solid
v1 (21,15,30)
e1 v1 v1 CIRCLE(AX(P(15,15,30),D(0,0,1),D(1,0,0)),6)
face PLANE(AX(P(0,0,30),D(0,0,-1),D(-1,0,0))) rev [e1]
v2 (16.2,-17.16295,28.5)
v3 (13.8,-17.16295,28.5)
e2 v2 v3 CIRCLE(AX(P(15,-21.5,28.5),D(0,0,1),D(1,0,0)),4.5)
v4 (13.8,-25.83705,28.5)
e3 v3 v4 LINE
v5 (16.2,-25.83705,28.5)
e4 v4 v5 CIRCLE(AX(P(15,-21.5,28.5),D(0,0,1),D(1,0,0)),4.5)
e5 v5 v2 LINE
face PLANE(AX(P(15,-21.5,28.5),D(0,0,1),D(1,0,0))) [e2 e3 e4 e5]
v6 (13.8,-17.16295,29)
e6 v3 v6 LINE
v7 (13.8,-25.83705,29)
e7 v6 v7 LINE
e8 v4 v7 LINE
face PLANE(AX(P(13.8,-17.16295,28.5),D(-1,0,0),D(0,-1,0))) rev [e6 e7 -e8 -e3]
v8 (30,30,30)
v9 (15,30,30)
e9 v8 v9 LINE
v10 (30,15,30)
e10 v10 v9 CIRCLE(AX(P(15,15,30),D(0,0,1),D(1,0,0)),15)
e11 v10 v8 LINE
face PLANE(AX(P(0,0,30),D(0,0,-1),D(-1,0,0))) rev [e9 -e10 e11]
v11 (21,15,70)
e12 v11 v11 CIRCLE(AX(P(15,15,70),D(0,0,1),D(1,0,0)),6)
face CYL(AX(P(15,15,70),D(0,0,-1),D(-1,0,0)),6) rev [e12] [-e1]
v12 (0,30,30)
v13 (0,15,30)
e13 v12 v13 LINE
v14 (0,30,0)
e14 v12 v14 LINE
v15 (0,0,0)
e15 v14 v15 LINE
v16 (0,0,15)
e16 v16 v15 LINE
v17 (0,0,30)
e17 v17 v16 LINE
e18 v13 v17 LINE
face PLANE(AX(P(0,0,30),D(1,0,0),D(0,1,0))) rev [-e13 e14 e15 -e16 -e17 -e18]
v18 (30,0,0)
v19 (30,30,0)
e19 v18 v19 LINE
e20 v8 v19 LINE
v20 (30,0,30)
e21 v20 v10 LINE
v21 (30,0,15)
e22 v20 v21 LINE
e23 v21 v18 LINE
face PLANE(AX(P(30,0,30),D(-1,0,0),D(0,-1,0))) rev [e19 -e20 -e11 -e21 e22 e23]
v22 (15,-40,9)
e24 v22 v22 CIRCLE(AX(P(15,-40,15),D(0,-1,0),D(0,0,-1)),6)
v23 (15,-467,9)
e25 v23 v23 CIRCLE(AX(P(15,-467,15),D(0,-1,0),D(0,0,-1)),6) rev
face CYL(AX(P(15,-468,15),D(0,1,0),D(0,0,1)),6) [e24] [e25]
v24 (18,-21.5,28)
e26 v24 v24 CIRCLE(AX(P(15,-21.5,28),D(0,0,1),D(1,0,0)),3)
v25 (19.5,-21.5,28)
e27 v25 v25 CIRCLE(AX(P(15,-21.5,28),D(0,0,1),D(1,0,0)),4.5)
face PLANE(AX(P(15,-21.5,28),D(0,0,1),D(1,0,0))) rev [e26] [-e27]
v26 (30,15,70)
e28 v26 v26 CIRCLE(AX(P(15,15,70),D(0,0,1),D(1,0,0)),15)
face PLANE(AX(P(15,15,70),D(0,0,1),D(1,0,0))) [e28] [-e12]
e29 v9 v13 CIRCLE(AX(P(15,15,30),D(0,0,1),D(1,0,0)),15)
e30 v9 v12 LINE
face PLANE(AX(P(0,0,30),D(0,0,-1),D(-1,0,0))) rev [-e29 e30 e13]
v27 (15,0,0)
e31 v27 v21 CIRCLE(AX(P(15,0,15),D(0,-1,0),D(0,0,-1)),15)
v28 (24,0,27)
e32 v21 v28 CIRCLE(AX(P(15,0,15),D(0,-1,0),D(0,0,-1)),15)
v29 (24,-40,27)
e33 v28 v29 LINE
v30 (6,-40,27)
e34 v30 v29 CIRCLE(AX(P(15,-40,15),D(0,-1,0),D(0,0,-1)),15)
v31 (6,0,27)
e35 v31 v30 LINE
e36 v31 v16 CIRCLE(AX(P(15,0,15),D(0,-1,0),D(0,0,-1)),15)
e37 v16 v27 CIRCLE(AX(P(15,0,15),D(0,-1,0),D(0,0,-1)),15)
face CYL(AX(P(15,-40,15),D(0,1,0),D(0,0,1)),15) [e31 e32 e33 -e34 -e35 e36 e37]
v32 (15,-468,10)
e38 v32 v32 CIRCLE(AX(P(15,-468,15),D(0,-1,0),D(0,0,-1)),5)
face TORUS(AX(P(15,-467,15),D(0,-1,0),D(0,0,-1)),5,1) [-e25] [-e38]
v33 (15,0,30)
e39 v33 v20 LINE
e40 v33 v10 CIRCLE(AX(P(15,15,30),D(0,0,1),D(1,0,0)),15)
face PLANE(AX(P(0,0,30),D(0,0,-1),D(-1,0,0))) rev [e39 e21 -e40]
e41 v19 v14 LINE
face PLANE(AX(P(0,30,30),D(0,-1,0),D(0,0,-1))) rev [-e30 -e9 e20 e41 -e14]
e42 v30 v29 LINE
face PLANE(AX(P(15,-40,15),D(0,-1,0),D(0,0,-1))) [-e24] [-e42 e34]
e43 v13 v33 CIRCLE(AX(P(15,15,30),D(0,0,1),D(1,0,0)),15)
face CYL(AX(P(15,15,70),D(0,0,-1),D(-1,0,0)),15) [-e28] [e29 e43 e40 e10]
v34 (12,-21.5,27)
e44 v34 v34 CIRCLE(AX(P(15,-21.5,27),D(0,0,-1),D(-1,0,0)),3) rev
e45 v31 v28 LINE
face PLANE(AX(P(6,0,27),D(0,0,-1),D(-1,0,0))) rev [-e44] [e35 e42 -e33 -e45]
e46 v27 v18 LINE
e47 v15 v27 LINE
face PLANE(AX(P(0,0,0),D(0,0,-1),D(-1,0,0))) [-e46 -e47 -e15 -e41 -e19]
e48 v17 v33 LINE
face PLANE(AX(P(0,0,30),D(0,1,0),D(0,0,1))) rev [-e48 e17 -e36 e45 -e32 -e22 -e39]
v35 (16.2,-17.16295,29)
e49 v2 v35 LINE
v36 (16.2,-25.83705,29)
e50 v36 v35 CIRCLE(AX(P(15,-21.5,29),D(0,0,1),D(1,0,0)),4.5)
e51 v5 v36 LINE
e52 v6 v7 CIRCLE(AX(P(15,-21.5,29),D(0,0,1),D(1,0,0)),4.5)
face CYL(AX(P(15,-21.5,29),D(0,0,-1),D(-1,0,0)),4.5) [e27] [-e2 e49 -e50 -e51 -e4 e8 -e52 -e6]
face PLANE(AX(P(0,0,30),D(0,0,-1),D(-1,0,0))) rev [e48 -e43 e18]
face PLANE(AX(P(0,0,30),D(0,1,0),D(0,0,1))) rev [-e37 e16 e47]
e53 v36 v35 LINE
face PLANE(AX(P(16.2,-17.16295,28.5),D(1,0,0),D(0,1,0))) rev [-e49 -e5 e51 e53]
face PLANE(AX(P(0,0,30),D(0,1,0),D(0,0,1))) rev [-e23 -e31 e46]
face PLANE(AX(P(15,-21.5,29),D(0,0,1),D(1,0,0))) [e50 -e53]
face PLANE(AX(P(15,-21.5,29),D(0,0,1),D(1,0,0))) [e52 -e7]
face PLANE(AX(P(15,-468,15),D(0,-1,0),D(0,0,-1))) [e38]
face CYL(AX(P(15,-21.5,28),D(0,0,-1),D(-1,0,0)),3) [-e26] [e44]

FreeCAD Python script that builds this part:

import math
import FreeCAD as App
import Part
import Sketcher

V = App.Vector
Q = App.Units.Quantity


def edges_at(feature, points):
    """Names of the edges that pass closest to the given points."""
    edges = feature.Shape.Edges
    near = lambda p: min(range(len(edges)), key=lambda i: edges[i].distToShape(Part.Vertex(*p))[0])
    return sorted({f"Edge{near(p) + 1}" for p in points})


def add_polygon(sketch, points):
    """Adds a closed chain of lines whose ends are joined by coincident constraints."""
    first, n = sketch.GeometryCount, len(points)
    for a, b in zip(points, points[1:] + points[:1]):
        sketch.addGeometry(Part.LineSegment(App.Vector(*a, 0), App.Vector(*b, 0)), False)
    for i in range(n):
        sketch.addConstraint(Sketcher.Constraint("Coincident", first + i, 2, first + (i + 1) % n, 1))

doc = App.newDocument("Part")
params = doc.addObject("Spreadsheet::Sheet", "Params")
for row, (alias, value) in enumerate([
    ("sketch1_width", "30 mm"),
    ("pad1_length", "30 mm"),
    ("sketch2_diameter", "30 mm"),
    ("sketch2_diameter2", "12 mm"),
    ("pad2_length", "40 mm"),
    ("sketch3_diameter", "30 mm"),
    ("pad3_length", "40 mm"),
    ("sketch4_radius", "15 mm"),
    ("sketch4_width", "18 mm"),
    ("pocket1_length", "40 mm"),
    ("sketch5_diameter", "6 mm"),
    ("pad4_length", "1 mm"),
    ("sketch6_diameter", "9 mm"),
    ("pad5_length", "1 mm"),
    ("sketch7_radius", "4.5 mm"),
    ("pocket2_length", "0.5 mm"),
    ("sketch8_diameter", "12 mm"),
    ("pad6_length", "428 mm"),
    ("fillet_radius", "1 mm"),
], start=1):
    params.set(f"A{row}", alias)
    params.set(f"B{row}", "=" + value)
    params.setAlias(f"B{row}", alias)

body = doc.addObject("PartDesign::Body", "Body")

# Sketch on XY plane
sketch1 = doc.addObject("Sketcher::SketchObject", "Sketch")
body.addObject(sketch1)
sketch1.AttachmentSupport = (doc.XY_Plane, [""])
sketch1.MapMode = "FlatFace"
add_polygon(sketch1, [(0, 30), (0, 0), (30, 0), (30, 30)])  # lines 0-3
sketch1.addConstraint([
    Sketcher.Constraint("Vertical", 0),
    Sketcher.Constraint("Horizontal", 1),
    Sketcher.Constraint("Vertical", 2),
    Sketcher.Constraint("Horizontal", 3),
    Sketcher.Constraint("Coincident", 0, 2, -1, 1),
    Sketcher.Constraint("Equal", 3, 0),
    Sketcher.Constraint("DistanceX", 1, 1, 1, 2, Q("30 mm")),
])
sketch1.setExpression("Constraints[10]", "Params.sketch1_width")
pad1 = doc.addObject("PartDesign::Pad", "Pad")
body.addObject(pad1)
pad1.Profile = sketch1
pad1.setExpression("Length", "Params.pad1_length")

# Sketch on XY plane
sketch2 = doc.addObject("Sketcher::SketchObject", "Sketch001")
body.addObject(sketch2)
sketch2.AttachmentSupport = (doc.XY_Plane, [""])
sketch2.MapMode = "FlatFace"
sketch2.AttachmentOffset = App.Placement(V(0, 0, 30), App.Rotation())
sketch2.addGeometry([
    Part.Circle(V(15, 15, 0), V(0, 0, 1), 15),
    Part.Circle(V(15, 15, 0), V(0, 0, 1), 6),
], False)
sketch2.addConstraint([
    Sketcher.Constraint("Coincident", 1, 3, 0, 3),
    Sketcher.Constraint("Diameter", 0, Q("30 mm")),
    Sketcher.Constraint("Diameter", 1, Q("12 mm")),
    Sketcher.Constraint("DistanceX", -1, 1, 0, 3, Q("15 mm")),
    Sketcher.Constraint("DistanceY", -1, 1, 0, 3, Q("15 mm")),
])
sketch2.setExpression("Constraints[1]", "Params.sketch2_diameter")
sketch2.setExpression("Constraints[2]", "Params.sketch2_diameter2")
pad2 = doc.addObject("PartDesign::Pad", "Pad001")
body.addObject(pad2)
pad2.Profile = sketch2
pad2.setExpression("Length", "Params.pad2_length")

# Sketch on XZ plane
sketch3 = doc.addObject("Sketcher::SketchObject", "Sketch002")
body.addObject(sketch3)
sketch3.AttachmentSupport = (doc.XZ_Plane, [""])
sketch3.MapMode = "FlatFace"
sketch3.addGeometry(Part.Circle(V(15, 15, 0), V(0, 0, 1), 15), False)
sketch3.addConstraint([
    Sketcher.Constraint("Diameter", 0, Q("30 mm")),
    Sketcher.Constraint("DistanceX", -1, 1, 0, 3, Q("15 mm")),
    Sketcher.Constraint("DistanceY", -1, 1, 0, 3, Q("15 mm")),
])
sketch3.setExpression("Constraints[0]", "Params.sketch3_diameter")
pad3 = doc.addObject("PartDesign::Pad", "Pad002")
body.addObject(pad3)
pad3.Profile = sketch3
pad3.setExpression("Length", "Params.pad3_length")

# Sketch on XZ plane
sketch4 = doc.addObject("Sketcher::SketchObject", "Sketch003")
body.addObject(sketch4)
sketch4.AttachmentSupport = (doc.XZ_Plane, [""])
sketch4.MapMode = "FlatFace"
sketch4.AttachmentOffset = App.Placement(V(0, 0, 40), App.Rotation())
sketch4.addGeometry([
    Part.LineSegment(V(6, 27, 0), V(24, 27, 0)),
    Part.ArcOfCircle(Part.Circle(V(15, 15, 0), V(0, 0, 1), 15), math.radians(53), math.radians(127)),
], False)
sketch4.addConstraint([
    Sketcher.Constraint("Coincident", 0, 1, 1, 2),
    Sketcher.Constraint("Coincident", 1, 1, 0, 2),
    Sketcher.Constraint("Horizontal", 0),
    Sketcher.Constraint("Radius", 1, Q("15 mm")),
    Sketcher.Constraint("DistanceX", 0, 1, 0, 2, Q("18 mm")),
    Sketcher.Constraint("DistanceX", -1, 1, 1, 3, Q("15 mm")),
    Sketcher.Constraint("DistanceY", -1, 1, 1, 3, Q("15 mm")),
])
sketch4.setExpression("Constraints[3]", "Params.sketch4_radius")
sketch4.setExpression("Constraints[4]", "Params.sketch4_width")
pocket1 = doc.addObject("PartDesign::Pocket", "Pocket")
body.addObject(pocket1)
pocket1.Profile = sketch4
pocket1.setExpression("Length", "Params.pocket1_length")

# Sketch on XY plane
sketch5 = doc.addObject("Sketcher::SketchObject", "Sketch004")
body.addObject(sketch5)
sketch5.AttachmentSupport = (doc.XY_Plane, [""])
sketch5.MapMode = "FlatFace"
sketch5.AttachmentOffset = App.Placement(V(0, 0, 27), App.Rotation())
sketch5.addGeometry(Part.Circle(V(15, -21.5, 0), V(0, 0, 1), 3), False)
sketch5.addConstraint([
    Sketcher.Constraint("Diameter", 0, Q("6 mm")),
    Sketcher.Constraint("DistanceX", -1, 1, 0, 3, Q("15 mm")),
    Sketcher.Constraint("DistanceY", 0, 3, -1, 1, Q("21.5 mm")),
])
sketch5.setExpression("Constraints[0]", "Params.sketch5_diameter")
pad4 = doc.addObject("PartDesign::Pad", "Pad003")
body.addObject(pad4)
pad4.Profile = sketch5
pad4.setExpression("Length", "Params.pad4_length")

# Sketch on XY plane
sketch6 = doc.addObject("Sketcher::SketchObject", "Sketch005")
body.addObject(sketch6)
sketch6.AttachmentSupport = (doc.XY_Plane, [""])
sketch6.MapMode = "FlatFace"
sketch6.AttachmentOffset = App.Placement(V(0, 0, 28), App.Rotation())
sketch6.addGeometry(Part.Circle(V(15, -21.5, 0), V(0, 0, 1), 4.5), False)
sketch6.addConstraint([
    Sketcher.Constraint("Diameter", 0, Q("9 mm")),
    Sketcher.Constraint("DistanceX", -1, 1, 0, 3, Q("15 mm")),
    Sketcher.Constraint("DistanceY", 0, 3, -1, 1, Q("21.5 mm")),
])
sketch6.setExpression("Constraints[0]", "Params.sketch6_diameter")
pad5 = doc.addObject("PartDesign::Pad", "Pad004")
body.addObject(pad5)
pad5.Profile = sketch6
pad5.setExpression("Length", "Params.pad5_length")

# Sketch on XY plane
sketch7 = doc.addObject("Sketcher::SketchObject", "Sketch006")
body.addObject(sketch7)
sketch7.AttachmentSupport = (doc.XY_Plane, [""])
sketch7.MapMode = "FlatFace"
sketch7.AttachmentOffset = App.Placement(V(0, 0, 29), App.Rotation())
sketch7.addGeometry([
    Part.LineSegment(V(16.2, -25.8, 0), V(16.2, -17.2, 0)),
    Part.ArcOfCircle(Part.Circle(V(15, -21.5, 0), V(0, 0, 1), 4.5), math.radians(75), math.radians(105)),
    Part.LineSegment(V(13.8, -17.2, 0), V(13.8, -25.8, 0)),
    Part.ArcOfCircle(Part.Circle(V(15, -21.5, 0), V(0, 0, 1), 4.5), math.radians(-105), math.radians(-75)),
], False)
sketch7.addConstraint([
    Sketcher.Constraint("Coincident", 0, 2, 1, 1),
    Sketcher.Constraint("Coincident", 1, 2, 2, 1),
    Sketcher.Constraint("Coincident", 2, 2, 3, 1),
    Sketcher.Constraint("Coincident", 3, 2, 0, 1),
    Sketcher.Constraint("Vertical", 0),
    Sketcher.Constraint("Vertical", 2),
    Sketcher.Constraint("Coincident", 3, 3, 1, 3),
    Sketcher.Constraint("Equal", 1, 3),
    Sketcher.Constraint("Horizontal", 0, 2, 1, 2),
    Sketcher.Constraint("Radius", 1, Q("4.5 mm")),
    Sketcher.Constraint("DistanceX", -1, 1, 1, 3, Q("15 mm")),
    Sketcher.Constraint("DistanceY", 1, 3, -1, 1, Q("21.5 mm")),
    Sketcher.Constraint("DistanceX", -1, 1, 0, 2, Q("16.2 mm")),
])
sketch7.setExpression("Constraints[9]", "Params.sketch7_radius")
pocket2 = doc.addObject("PartDesign::Pocket", "Pocket001")
body.addObject(pocket2)
pocket2.Profile = sketch7
pocket2.setExpression("Length", "Params.pocket2_length")

# Sketch on XZ plane
sketch8 = doc.addObject("Sketcher::SketchObject", "Sketch007")
body.addObject(sketch8)
sketch8.AttachmentSupport = (doc.XZ_Plane, [""])
sketch8.MapMode = "FlatFace"
sketch8.AttachmentOffset = App.Placement(V(0, 0, 40), App.Rotation())
sketch8.addGeometry(Part.Circle(V(15, 15, 0), V(0, 0, 1), 6), False)
sketch8.addConstraint([
    Sketcher.Constraint("Diameter", 0, Q("12 mm")),
    Sketcher.Constraint("DistanceX", -1, 1, 0, 3, Q("15 mm")),
    Sketcher.Constraint("DistanceY", -1, 1, 0, 3, Q("15 mm")),
])
sketch8.setExpression("Constraints[0]", "Params.sketch8_diameter")
pad6 = doc.addObject("PartDesign::Pad", "Pad005")
body.addObject(pad6)
pad6.Profile = sketch8
pad6.setExpression("Length", "Params.pad6_length")
doc.recompute()

fillet = doc.addObject("PartDesign::Fillet", "Fillet")
body.addObject(fillet)
fillet.Base = (pad6, edges_at(pad6, [(9, -468, 15)]))
fillet.setExpression("Radius", "Params.fillet_radius")

doc.recompute()
